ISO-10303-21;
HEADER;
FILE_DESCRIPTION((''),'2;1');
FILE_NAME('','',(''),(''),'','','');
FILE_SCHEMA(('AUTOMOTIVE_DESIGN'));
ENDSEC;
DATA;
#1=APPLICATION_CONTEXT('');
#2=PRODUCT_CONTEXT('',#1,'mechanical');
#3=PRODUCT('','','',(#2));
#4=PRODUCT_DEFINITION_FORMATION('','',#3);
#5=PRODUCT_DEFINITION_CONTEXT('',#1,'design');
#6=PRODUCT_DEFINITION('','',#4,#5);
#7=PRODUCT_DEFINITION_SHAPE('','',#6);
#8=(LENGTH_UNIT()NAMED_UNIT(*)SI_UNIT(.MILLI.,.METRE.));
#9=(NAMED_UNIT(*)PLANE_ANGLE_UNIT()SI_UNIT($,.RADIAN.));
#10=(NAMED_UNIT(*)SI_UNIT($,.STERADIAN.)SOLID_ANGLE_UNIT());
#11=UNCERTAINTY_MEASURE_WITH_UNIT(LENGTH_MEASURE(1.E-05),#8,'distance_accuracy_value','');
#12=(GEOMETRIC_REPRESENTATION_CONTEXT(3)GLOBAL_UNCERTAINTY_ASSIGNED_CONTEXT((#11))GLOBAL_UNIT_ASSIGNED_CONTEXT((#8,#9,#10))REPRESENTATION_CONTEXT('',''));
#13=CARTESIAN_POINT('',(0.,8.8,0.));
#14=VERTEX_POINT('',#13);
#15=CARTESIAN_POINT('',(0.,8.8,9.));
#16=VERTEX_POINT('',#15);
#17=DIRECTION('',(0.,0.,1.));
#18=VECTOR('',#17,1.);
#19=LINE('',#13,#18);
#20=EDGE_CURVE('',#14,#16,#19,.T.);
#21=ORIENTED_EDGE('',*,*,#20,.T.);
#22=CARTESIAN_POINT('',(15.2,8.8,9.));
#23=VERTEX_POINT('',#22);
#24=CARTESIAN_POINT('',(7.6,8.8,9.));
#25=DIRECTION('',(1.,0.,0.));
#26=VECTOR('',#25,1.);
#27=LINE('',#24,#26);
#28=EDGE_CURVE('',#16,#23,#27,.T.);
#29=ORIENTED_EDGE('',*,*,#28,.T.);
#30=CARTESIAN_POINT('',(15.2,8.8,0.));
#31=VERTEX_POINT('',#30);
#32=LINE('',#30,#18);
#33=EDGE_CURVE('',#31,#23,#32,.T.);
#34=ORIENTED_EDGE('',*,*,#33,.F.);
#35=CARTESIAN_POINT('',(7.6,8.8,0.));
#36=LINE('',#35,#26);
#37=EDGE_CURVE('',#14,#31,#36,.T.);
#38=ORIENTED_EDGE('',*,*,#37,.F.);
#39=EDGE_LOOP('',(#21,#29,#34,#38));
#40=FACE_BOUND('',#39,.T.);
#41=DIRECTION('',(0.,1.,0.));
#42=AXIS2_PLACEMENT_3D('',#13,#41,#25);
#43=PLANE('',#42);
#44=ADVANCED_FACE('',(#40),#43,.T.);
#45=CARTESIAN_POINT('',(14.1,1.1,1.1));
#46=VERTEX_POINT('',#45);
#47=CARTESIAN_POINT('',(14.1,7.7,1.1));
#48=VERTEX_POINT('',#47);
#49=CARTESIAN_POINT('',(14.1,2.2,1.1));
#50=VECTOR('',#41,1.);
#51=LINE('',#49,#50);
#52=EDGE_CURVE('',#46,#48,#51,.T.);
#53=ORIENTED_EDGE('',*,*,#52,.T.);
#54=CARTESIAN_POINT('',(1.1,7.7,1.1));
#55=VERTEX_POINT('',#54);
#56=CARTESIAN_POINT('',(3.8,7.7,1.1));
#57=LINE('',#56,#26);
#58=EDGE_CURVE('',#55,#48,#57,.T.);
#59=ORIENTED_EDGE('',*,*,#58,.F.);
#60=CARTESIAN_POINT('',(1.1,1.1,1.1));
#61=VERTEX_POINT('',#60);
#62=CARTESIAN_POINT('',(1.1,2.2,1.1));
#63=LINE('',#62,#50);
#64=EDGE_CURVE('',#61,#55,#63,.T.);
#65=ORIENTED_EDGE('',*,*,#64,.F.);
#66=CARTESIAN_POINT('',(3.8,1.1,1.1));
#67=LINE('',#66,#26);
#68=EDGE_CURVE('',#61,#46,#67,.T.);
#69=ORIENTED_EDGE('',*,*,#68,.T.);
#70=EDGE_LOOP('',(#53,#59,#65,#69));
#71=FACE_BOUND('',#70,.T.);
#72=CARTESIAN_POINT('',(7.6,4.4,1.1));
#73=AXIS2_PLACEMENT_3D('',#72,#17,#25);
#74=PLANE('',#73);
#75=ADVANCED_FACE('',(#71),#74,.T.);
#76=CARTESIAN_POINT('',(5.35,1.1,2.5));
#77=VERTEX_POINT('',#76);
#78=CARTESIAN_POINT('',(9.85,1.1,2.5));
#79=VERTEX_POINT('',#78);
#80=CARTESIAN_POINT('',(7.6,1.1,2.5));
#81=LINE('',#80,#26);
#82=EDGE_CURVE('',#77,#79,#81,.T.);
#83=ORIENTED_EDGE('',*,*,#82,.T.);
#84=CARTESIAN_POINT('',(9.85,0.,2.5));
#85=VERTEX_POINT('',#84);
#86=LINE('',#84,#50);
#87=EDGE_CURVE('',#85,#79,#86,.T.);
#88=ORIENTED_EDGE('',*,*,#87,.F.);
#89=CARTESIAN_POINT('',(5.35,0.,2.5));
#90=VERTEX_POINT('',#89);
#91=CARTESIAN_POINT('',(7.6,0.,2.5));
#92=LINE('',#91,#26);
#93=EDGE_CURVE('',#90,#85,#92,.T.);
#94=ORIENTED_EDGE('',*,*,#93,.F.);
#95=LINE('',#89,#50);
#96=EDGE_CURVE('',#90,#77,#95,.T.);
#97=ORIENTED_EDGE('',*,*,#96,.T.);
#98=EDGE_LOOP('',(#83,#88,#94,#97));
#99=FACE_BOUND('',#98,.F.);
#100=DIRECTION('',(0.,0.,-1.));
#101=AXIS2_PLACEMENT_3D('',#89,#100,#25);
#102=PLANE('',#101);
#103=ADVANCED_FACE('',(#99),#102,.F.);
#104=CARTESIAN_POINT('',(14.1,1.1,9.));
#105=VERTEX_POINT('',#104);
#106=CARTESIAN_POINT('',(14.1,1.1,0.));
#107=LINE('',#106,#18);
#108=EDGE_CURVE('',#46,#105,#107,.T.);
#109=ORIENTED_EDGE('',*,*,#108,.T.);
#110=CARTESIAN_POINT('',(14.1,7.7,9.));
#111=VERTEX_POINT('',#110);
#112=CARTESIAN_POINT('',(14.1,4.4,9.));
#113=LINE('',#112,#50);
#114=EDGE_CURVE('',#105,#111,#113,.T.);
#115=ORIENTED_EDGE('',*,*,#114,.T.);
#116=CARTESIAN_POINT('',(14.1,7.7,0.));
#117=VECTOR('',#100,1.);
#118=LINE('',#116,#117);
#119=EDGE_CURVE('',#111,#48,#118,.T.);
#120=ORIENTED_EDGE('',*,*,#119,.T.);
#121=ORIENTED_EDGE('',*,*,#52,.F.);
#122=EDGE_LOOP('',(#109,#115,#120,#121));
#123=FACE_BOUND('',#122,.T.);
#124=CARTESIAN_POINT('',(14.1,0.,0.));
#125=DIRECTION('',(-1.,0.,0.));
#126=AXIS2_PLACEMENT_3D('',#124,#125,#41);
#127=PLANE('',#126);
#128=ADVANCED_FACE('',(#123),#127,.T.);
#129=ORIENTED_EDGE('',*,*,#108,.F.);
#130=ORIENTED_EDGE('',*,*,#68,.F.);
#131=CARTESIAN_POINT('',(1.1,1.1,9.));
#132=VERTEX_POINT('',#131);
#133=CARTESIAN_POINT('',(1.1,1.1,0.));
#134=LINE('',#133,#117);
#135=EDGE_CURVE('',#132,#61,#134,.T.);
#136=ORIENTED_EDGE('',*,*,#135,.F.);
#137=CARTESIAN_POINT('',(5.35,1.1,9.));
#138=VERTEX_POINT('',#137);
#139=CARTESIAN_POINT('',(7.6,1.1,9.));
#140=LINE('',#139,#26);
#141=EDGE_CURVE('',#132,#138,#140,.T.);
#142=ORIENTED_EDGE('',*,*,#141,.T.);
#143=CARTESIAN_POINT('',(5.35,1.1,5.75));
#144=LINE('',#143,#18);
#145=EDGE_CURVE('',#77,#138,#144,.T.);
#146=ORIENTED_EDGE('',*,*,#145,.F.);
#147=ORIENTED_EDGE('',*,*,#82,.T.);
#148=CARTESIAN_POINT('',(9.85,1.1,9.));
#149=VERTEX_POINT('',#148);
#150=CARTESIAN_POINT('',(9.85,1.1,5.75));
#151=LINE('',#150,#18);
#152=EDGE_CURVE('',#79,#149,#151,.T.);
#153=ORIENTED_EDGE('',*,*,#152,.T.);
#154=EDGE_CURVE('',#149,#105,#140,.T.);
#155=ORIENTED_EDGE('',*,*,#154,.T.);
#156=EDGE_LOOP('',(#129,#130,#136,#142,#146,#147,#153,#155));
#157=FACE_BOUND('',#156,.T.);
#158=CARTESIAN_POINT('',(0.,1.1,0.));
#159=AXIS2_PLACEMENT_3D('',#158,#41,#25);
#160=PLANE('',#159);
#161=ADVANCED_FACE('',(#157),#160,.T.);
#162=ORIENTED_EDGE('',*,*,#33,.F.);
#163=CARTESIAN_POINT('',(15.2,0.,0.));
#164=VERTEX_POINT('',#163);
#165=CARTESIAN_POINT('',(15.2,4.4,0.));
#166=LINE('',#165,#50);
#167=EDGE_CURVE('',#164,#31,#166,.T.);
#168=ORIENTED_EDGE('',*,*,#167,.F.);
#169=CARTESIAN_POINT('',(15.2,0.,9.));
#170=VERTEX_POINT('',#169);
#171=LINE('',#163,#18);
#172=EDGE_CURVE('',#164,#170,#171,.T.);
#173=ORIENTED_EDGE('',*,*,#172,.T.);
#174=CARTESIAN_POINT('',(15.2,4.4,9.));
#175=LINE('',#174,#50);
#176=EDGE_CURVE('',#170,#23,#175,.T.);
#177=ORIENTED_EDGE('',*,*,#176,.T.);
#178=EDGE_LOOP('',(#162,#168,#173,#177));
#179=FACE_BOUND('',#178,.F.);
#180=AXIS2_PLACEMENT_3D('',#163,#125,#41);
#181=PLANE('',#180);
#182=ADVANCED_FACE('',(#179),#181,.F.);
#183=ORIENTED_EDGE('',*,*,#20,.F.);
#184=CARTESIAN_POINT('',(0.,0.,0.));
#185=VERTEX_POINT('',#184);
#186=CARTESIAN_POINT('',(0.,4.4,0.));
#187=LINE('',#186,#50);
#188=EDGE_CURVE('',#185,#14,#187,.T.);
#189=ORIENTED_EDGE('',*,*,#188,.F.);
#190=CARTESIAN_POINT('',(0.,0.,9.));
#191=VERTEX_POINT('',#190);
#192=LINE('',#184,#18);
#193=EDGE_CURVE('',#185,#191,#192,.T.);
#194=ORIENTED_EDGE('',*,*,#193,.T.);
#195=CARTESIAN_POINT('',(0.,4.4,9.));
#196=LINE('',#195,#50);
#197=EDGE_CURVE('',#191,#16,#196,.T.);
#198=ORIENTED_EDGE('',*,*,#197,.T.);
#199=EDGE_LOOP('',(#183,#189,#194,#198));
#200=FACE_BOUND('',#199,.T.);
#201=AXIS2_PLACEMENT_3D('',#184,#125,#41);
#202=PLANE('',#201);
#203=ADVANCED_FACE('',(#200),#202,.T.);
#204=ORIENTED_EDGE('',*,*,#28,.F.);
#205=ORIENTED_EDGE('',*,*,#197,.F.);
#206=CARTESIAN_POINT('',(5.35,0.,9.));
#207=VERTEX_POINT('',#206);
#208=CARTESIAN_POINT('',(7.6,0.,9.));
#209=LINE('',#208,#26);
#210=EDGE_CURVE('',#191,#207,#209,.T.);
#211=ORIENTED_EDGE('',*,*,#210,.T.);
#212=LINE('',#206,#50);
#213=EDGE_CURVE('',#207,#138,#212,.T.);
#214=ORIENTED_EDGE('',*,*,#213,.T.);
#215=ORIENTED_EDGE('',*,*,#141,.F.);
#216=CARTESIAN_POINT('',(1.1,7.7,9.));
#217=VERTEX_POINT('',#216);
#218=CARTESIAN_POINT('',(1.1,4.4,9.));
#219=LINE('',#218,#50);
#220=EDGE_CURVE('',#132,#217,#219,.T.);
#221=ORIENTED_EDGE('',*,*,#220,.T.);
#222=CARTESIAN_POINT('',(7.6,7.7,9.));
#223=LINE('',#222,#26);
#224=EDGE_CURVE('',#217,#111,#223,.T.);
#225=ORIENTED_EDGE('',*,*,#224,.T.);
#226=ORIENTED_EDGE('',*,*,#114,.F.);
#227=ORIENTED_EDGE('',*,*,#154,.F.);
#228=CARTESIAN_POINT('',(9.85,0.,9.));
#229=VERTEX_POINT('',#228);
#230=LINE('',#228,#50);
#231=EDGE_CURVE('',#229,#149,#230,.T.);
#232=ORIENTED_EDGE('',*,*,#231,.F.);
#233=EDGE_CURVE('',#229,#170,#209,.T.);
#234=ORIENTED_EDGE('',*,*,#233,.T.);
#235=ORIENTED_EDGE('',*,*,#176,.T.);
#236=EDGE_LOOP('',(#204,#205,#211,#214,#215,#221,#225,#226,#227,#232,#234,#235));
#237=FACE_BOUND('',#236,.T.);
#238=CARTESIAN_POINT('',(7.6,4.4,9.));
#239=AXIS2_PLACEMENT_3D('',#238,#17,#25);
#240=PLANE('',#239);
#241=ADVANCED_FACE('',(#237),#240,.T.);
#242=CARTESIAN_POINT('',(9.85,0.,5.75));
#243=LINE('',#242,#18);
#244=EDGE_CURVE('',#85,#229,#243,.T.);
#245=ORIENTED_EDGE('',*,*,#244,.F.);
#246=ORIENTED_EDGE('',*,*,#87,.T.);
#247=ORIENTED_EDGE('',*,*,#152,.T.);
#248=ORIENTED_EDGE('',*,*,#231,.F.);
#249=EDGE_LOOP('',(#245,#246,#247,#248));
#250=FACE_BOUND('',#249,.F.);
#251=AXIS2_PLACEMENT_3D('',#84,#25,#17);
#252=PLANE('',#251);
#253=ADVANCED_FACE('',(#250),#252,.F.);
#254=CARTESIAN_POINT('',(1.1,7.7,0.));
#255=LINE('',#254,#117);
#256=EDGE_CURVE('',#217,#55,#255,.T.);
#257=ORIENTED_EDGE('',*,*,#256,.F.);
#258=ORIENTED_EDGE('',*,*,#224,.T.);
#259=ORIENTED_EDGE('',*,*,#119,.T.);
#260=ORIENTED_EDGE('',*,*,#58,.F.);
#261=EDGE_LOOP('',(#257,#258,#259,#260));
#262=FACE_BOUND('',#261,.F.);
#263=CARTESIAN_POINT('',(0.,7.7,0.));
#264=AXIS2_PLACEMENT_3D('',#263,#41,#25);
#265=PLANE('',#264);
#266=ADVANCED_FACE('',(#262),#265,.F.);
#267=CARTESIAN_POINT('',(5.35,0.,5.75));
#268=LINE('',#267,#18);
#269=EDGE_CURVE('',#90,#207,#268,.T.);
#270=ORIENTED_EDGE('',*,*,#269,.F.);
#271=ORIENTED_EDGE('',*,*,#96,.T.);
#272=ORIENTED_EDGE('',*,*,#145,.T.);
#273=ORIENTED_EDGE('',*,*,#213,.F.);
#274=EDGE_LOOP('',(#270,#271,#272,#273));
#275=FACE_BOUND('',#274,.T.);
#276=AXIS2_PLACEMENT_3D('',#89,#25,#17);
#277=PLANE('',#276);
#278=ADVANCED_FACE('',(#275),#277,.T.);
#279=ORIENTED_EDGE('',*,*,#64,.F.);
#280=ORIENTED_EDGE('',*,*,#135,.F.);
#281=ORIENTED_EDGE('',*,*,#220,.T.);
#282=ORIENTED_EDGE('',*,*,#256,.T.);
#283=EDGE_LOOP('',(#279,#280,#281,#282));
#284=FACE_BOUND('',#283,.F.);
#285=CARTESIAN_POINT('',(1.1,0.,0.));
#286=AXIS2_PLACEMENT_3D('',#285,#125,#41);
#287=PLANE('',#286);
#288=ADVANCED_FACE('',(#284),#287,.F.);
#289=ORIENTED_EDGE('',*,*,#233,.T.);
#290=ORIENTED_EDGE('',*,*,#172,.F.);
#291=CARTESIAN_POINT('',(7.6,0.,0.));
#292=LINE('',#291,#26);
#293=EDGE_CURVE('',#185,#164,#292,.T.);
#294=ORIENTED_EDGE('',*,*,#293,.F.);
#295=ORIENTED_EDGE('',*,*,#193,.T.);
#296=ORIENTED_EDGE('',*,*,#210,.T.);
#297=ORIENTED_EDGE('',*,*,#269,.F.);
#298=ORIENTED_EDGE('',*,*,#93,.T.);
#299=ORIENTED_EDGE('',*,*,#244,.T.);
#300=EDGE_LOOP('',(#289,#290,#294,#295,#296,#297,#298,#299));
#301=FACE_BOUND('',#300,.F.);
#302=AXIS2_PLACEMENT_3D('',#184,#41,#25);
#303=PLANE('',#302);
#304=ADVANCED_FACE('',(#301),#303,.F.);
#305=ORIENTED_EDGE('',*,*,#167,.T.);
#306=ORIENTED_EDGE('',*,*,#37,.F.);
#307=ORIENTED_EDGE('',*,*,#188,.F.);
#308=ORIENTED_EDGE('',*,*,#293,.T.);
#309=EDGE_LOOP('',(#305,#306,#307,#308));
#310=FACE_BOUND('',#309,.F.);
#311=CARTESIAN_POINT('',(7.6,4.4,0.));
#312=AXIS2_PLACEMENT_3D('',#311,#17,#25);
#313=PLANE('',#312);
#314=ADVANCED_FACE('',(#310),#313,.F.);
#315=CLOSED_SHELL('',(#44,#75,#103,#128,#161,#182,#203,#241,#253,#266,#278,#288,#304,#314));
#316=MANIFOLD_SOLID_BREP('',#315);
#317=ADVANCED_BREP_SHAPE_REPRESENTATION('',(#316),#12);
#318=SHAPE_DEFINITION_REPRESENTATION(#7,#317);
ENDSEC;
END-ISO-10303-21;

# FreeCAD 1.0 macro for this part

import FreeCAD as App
import Part
import Sketcher


def faces_at(feature, points):
    """Names of the faces that lie closest to the given points."""
    faces = feature.Shape.Faces
    near = lambda p: min(range(len(faces)), key=lambda i: faces[i].distToShape(Part.Vertex(*p))[0])
    return sorted({f"Face{near(p) + 1}" for p in points})


def add_polygon(sketch, points):
    """Adds a closed chain of lines whose ends are joined by coincident constraints."""
    first, n = sketch.GeometryCount, len(points)
    for a, b in zip(points, points[1:] + points[:1]):
        sketch.addGeometry(Part.LineSegment(App.Vector(*a, 0), App.Vector(*b, 0)), False)
    for i in range(n):
        sketch.addConstraint(Sketcher.Constraint("Coincident", first + i, 2, first + (i + 1) % n, 1))

doc = App.newDocument("Part")
body = doc.addObject("PartDesign::Body", "Body")

# Sketch on XY plane
sketch1 = body.newObject("Sketcher::SketchObject", "Sketch")
sketch1.AttachmentSupport = (doc.getObject("XY_Plane"), [""])
sketch1.MapMode = "FlatFace"
add_polygon(sketch1, [(0, 9), (0, 0), (15, 0), (15, 9)])  # lines 0-3
sketch1.addConstraint([
    Sketcher.Constraint("Vertical", 0),
    Sketcher.Constraint("Horizontal", 1),
    Sketcher.Constraint("Vertical", 2),
    Sketcher.Constraint("Horizontal", 3),
    Sketcher.Constraint("Coincident", 0, 2, -1, 1),
    Sketcher.Constraint("DistanceX", 1, 1, 1, 2, 15.2),
    Sketcher.Constraint("DistanceY", 0, 2, 0, 1, 8.8),
])
pad1 = body.newObject("PartDesign::Pad", "Pad")
pad1.Profile = sketch1
pad1.Length = 9
doc.recompute()

thickness = body.newObject("PartDesign::Thickness", "Thickness")
thickness.Base = (pad1, faces_at(pad1, [(7.6, 4.4, 9)]))
thickness.Value = 1.1
thickness.Reversed = True
thickness.Join = "Arc"

# Sketch on XZ plane
sketch2 = body.newObject("Sketcher::SketchObject", "Sketch001")
sketch2.AttachmentSupport = (doc.getObject("XZ_Plane"), [""])
sketch2.MapMode = "FlatFace"
add_polygon(sketch2, [(5.3, 9), (5.3, 2.5), (9.8, 2.5), (9.8, 9)])  # lines 0-3
sketch2.addConstraint([
    Sketcher.Constraint("Vertical", 0),
    Sketcher.Constraint("Horizontal", 1),
    Sketcher.Constraint("Vertical", 2),
    Sketcher.Constraint("Horizontal", 3),
    Sketcher.Constraint("DistanceX", 1, 1, 1, 2, 4.5),
    Sketcher.Constraint("DistanceY", 0, 2, 0, 1, 6.5),
    Sketcher.Constraint("DistanceY", -1, 1, 2, 2, 9.0),
    Sketcher.Constraint("DistanceX", -1, 1, 0, 2, 5.35),
])
pocket1 = body.newObject("PartDesign::Pocket", "Pocket")
pocket1.Profile = sketch2
pocket1.Length = 1.1

doc.recompute()
